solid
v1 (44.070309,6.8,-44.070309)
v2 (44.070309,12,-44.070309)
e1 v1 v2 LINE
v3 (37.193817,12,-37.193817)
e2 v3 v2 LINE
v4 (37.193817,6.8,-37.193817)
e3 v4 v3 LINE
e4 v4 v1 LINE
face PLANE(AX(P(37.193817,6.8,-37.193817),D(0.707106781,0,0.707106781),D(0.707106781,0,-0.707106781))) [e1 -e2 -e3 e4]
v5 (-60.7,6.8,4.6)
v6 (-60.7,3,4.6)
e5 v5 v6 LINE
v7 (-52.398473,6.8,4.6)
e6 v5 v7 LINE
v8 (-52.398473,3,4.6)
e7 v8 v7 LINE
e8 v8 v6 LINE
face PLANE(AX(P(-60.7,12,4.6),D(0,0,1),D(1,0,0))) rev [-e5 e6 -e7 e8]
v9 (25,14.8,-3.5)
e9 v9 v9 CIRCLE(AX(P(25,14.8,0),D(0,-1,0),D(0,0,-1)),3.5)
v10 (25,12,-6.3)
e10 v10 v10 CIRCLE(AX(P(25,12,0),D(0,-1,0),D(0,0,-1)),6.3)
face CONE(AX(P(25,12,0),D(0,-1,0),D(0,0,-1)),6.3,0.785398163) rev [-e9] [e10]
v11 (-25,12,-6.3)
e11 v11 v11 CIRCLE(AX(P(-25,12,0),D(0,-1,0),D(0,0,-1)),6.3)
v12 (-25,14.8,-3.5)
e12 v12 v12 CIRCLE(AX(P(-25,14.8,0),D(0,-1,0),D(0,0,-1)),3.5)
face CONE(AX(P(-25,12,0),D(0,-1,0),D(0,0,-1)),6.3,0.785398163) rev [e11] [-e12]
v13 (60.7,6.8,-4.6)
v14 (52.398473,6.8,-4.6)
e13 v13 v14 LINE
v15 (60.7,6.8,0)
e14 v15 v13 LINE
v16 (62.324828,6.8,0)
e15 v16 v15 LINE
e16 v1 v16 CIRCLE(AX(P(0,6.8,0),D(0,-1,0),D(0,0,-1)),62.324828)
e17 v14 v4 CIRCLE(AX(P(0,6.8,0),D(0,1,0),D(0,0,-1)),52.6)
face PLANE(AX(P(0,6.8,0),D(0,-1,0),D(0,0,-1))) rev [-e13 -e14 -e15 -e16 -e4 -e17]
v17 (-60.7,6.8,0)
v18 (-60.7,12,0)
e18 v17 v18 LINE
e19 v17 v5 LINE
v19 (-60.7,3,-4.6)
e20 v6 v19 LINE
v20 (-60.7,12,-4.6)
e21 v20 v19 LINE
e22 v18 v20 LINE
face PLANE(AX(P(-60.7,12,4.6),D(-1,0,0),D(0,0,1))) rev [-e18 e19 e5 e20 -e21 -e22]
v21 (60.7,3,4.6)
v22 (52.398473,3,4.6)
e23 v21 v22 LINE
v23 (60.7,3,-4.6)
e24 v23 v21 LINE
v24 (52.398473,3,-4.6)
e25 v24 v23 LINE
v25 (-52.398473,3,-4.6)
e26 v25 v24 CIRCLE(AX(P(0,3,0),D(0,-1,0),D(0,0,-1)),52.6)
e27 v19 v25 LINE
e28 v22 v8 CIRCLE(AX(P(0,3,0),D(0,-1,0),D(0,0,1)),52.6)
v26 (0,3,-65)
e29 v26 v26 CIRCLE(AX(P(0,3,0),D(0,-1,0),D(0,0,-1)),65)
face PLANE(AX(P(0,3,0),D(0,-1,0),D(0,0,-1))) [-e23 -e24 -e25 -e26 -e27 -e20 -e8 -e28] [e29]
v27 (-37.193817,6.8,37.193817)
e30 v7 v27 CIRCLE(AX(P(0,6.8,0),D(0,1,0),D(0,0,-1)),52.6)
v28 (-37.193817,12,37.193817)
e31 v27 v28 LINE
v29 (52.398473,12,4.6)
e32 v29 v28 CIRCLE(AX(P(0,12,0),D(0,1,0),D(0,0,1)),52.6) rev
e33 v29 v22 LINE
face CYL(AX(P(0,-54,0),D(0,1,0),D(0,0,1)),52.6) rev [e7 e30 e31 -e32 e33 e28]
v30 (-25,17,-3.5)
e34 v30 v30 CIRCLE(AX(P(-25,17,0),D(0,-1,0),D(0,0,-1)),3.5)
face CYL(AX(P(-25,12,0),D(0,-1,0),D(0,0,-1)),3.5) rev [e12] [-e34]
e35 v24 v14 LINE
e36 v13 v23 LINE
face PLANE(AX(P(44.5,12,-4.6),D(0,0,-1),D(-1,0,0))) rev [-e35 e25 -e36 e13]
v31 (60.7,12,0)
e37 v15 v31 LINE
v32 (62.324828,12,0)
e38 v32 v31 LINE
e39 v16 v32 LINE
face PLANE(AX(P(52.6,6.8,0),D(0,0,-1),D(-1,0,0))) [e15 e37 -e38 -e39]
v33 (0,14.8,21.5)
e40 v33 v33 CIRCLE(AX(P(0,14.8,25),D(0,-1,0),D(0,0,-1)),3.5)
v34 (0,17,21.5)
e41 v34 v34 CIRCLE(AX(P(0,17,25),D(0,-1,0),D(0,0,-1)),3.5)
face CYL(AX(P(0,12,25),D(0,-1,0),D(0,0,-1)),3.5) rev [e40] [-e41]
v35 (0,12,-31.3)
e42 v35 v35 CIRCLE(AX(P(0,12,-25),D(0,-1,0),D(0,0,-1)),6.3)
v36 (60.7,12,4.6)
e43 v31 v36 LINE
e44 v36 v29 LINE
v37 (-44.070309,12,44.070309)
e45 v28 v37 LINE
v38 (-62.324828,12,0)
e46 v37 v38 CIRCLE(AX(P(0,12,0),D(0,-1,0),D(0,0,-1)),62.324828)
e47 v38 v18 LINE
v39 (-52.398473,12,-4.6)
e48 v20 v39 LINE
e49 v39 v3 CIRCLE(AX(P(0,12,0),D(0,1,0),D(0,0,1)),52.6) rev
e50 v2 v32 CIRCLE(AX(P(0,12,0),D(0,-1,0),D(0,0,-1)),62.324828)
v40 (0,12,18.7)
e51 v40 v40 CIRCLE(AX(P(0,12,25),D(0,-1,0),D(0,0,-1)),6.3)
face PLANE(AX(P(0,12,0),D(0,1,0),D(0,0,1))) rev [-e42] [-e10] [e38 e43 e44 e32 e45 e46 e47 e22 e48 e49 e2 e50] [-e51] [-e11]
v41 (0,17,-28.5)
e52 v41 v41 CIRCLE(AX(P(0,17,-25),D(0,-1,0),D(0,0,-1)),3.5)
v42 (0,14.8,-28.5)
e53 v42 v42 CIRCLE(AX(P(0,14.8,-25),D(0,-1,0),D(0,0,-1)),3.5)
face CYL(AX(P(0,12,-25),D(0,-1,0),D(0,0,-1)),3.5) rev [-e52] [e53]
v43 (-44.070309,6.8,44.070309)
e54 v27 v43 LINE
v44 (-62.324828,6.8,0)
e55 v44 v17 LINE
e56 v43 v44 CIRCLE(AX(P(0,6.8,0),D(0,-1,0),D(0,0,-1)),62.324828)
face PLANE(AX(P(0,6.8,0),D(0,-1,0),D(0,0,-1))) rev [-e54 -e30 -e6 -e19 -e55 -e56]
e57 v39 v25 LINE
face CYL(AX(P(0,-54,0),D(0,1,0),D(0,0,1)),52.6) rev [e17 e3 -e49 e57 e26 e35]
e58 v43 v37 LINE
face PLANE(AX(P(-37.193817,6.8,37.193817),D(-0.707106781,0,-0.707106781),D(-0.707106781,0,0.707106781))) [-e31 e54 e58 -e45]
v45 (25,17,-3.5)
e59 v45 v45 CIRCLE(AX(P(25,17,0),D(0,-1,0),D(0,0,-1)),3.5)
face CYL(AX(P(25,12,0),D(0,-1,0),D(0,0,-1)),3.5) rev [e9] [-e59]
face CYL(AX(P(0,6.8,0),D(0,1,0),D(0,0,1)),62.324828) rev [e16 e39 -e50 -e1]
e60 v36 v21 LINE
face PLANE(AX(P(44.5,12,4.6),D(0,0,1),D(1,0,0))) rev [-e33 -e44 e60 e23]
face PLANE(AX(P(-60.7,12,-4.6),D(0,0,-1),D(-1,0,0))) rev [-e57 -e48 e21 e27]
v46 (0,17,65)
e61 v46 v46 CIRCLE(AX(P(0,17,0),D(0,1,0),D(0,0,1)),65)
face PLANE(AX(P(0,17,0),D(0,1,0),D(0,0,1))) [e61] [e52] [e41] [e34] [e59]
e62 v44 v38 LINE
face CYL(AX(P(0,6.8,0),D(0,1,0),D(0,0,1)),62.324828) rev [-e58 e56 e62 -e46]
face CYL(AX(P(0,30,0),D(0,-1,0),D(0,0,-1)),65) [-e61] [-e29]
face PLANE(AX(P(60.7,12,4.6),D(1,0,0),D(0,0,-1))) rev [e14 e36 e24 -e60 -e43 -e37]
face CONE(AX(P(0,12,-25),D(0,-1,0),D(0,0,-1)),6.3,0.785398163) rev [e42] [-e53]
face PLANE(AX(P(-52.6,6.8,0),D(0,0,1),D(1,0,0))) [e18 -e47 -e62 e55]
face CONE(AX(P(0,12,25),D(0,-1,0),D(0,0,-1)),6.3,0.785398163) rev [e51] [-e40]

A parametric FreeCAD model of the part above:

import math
import FreeCAD as App
import Part
import Sketcher

V = App.Vector
Q = App.Units.Quantity


def add_polygon(sketch, points):
    """Adds a closed chain of lines whose ends are joined by coincident constraints."""
    first, n = sketch.GeometryCount, len(points)
    for a, b in zip(points, points[1:] + points[:1]):
        sketch.addGeometry(Part.LineSegment(App.Vector(*a, 0), App.Vector(*b, 0)), False)
    for i in range(n):
        sketch.addConstraint(Sketcher.Constraint("Coincident", first + i, 2, first + (i + 1) % n, 1))

doc = App.newDocument("Part")
params = doc.addObject("Spreadsheet::Sheet", "Params")
for row, (alias, value) in enumerate([
    ("sketch1_diameter", "130 mm"),
    ("pad1_length", "30 mm"),
    ("sketch2_diameter", "105.2 mm"),
    ("pocket1_length", "84 mm"),
    ("sketch3_diameter", "105.2 mm"),
    ("pad2_length", "5 mm"),
    ("sketch4_width", "16.2 mm"),
    ("sketch4_height", "9.2 mm"),
    ("pocket2_length", "12 mm"),
    ("sketch5_radius", "52.6 mm"),
    ("pocket3_length", "5.2 mm"),
    ("sketch6_diameter", "7 mm"),
    ("hole_diameter", "7 mm"),
    ("sketch7_diameter", "130 mm"),
    ("pocket4_length", "18 mm"),
    ("sketch8_diameter", "130 mm"),
    ("pad3_length", "5 mm"),
    ("sketch9_width", "5 mm"),
    ("sketch9_width2", "2.2 mm"),
    ("sketch9_height", "6.3 mm"),
    ("groove_angle", "360 deg"),
    ("linearpattern_pitch", "35.355339 mm"),
    ("linearpattern2_pitch", "50 mm"),
    ("linearpattern3_pitch", "50 mm"),
    ("linearpattern4_pitch", "35.355339 mm"),
    ("linearpattern5_pitch", "35.355339 mm"),
    ("sketch10_diameter", "130 mm"),
    ("sketch10_radius", "52.6 mm"),
    ("sketch10_height", "9.2 mm"),
    ("pocket5_length", "3 mm"),
], start=1):
    params.set(f"A{row}", alias)
    params.set(f"B{row}", "=" + value)
    params.setAlias(f"B{row}", alias)

body = doc.addObject("PartDesign::Body", "Body")

# Sketch on XZ plane
sketch1 = doc.addObject("Sketcher::SketchObject", "Sketch")
body.addObject(sketch1)
sketch1.AttachmentSupport = (doc.XZ_Plane, [""])
sketch1.MapMode = "FlatFace"
sketch1.addGeometry(Part.Circle(V(0, 0, 0), V(0, 0, 1), 65), False)
sketch1.addConstraint(Sketcher.Constraint("Coincident", 0, 3, -1, 1))
sketch1.addConstraint(Sketcher.Constraint("Diameter", 0, 130.0))
sketch1.setExpression("Constraints[1]", "Params.sketch1_diameter")
pad1 = doc.addObject("PartDesign::Pad", "Pad")
body.addObject(pad1)
pad1.Profile = sketch1
pad1.setExpression("Length", "Params.pad1_length")
pad1.Reversed = True

# Sketch on XZ plane
sketch2 = doc.addObject("Sketcher::SketchObject", "Sketch001")
body.addObject(sketch2)
sketch2.AttachmentSupport = (doc.XZ_Plane, [""])
sketch2.MapMode = "FlatFace"
sketch2.AttachmentOffset = App.Placement(V(0, 0, -30), App.Rotation())
sketch2.addGeometry(Part.Circle(V(0, 0, 0), V(0, 0, 1), 53), False)
sketch2.addConstraint(Sketcher.Constraint("Coincident", 0, 3, -1, 1))
sketch2.addConstraint(Sketcher.Constraint("Diameter", 0, 105.2))
sketch2.setExpression("Constraints[1]", "Params.sketch2_diameter")
pocket1 = doc.addObject("PartDesign::Pocket", "Pocket")
body.addObject(pocket1)
pocket1.Profile = sketch2
pocket1.setExpression("Length", "Params.pocket1_length")
pocket1.Reversed = True

# Sketch on XZ plane
sketch3 = doc.addObject("Sketcher::SketchObject", "Sketch002")
body.addObject(sketch3)
sketch3.AttachmentSupport = (doc.XZ_Plane, [""])
sketch3.MapMode = "FlatFace"
sketch3.AttachmentOffset = App.Placement(V(0, 0, -30), App.Rotation())
sketch3.addGeometry(Part.Circle(V(0, 0, 0), V(0, 0, 1), 53), False)
sketch3.addConstraint(Sketcher.Constraint("Coincident", 0, 3, -1, 1))
sketch3.addConstraint(Sketcher.Constraint("Diameter", 0, 105.2))
sketch3.setExpression("Constraints[1]", "Params.sketch3_diameter")
pad2 = doc.addObject("PartDesign::Pad", "Pad001")
body.addObject(pad2)
pad2.Profile = sketch3
pad2.setExpression("Length", "Params.pad2_length")

# Sketch on XZ plane
sketch4 = doc.addObject("Sketcher::SketchObject", "Sketch003")
body.addObject(sketch4)
sketch4.AttachmentSupport = (doc.XZ_Plane, [""])
sketch4.MapMode = "FlatFace"
add_polygon(sketch4, [(-61, 5), (-61, -5), (-44, -5), (-44, 5)])  # lines 0-3
add_polygon(sketch4, [(44, 5), (44, -5), (61, -5), (61, 5)])  # lines 4-7
sketch4.addConstraint(Sketcher.Constraint("Vertical", 0))
sketch4.addConstraint(Sketcher.Constraint("Horizontal", 1))
sketch4.addConstraint(Sketcher.Constraint("Vertical", 2))
sketch4.addConstraint(Sketcher.Constraint("Horizontal", 3))
sketch4.addConstraint(Sketcher.Constraint("Vertical", 4))
sketch4.addConstraint(Sketcher.Constraint("Horizontal", 5))
sketch4.addConstraint(Sketcher.Constraint("Vertical", 6))
sketch4.addConstraint(Sketcher.Constraint("Horizontal", 7))
sketch4.addConstraint(Sketcher.Constraint("Symmetric", 2, 2, 4, 2, -1, 1))
sketch4.addConstraint(Sketcher.Constraint("Symmetric", 0, 2, 6, 2, -1, 1))
sketch4.addConstraint(Sketcher.Constraint("Horizontal", 1, 2, 4, 2))
sketch4.addConstraint(Sketcher.Constraint("DistanceX", 1, 1, 1, 2, 16.2))
sketch4.addConstraint(Sketcher.Constraint("DistanceY", 0, 2, 0, 1, 9.2))
sketch4.addConstraint(Sketcher.Constraint("DistanceX", 1, 2, 4, 2, 89.0))
sketch4.setExpression("Constraints[19]", "Params.sketch4_width")
sketch4.setExpression("Constraints[20]", "Params.sketch4_height")
pocket2 = doc.addObject("PartDesign::Pocket", "Pocket001")
body.addObject(pocket2)
pocket2.Profile = sketch4
pocket2.setExpression("Length", "Params.pocket2_length")

# Sketch on XZ plane
sketch5 = doc.addObject("Sketcher::SketchObject", "Sketch004")
body.addObject(sketch5)
sketch5.AttachmentSupport = (doc.XZ_Plane, [""])
sketch5.MapMode = "FlatFace"
sketch5.AttachmentOffset = App.Placement(V(0, 0, -12), App.Rotation())
sketch5.addGeometry(Part.LineSegment(V(37, -37, 0), V(44, -44, 0)), False)
sketch5.addGeometry(Part.ArcOfCircle(Part.Circle(V(0, 0, 0), V(0, 0, 1), 62), math.radians(-45), math.radians(0)), False)
sketch5.addGeometry(Part.LineSegment(V(62, 0, 0), V(53, 0, 0)), False)
sketch5.addGeometry(Part.ArcOfCircle(Part.Circle(V(0, 0, 0), V(0, 0, 1), 53), math.radians(-45), math.radians(0)), False)
sketch5.addGeometry(Part.LineSegment(V(-37, 37, 0), V(-44, 44, 0)), False)
sketch5.addGeometry(Part.ArcOfCircle(Part.Circle(V(0, 0, 0), V(0, 0, 1), 62), math.radians(135), math.radians(180)), False)
sketch5.addGeometry(Part.LineSegment(V(-62, 0, 0), V(-53, 0, 0)), False)
sketch5.addGeometry(Part.ArcOfCircle(Part.Circle(V(0, 0, 0), V(0, 0, 1), 53), math.radians(135), math.radians(180)), False)
sketch5.addConstraint(Sketcher.Constraint("Coincident", 0, 2, 1, 1))
sketch5.addConstraint(Sketcher.Constraint("Coincident", 1, 2, 2, 1))
sketch5.addConstraint(Sketcher.Constraint("Coincident", 2, 2, 3, 2))
sketch5.addConstraint(Sketcher.Constraint("Coincident", 3, 1, 0, 1))
sketch5.addConstraint(Sketcher.Constraint("Coincident", 4, 2, 5, 1))
sketch5.addConstraint(Sketcher.Constraint("Coincident", 5, 2, 6, 1))
sketch5.addConstraint(Sketcher.Constraint("Coincident", 6, 2, 7, 2))
sketch5.addConstraint(Sketcher.Constraint("Coincident", 7, 1, 4, 1))
sketch5.addConstraint(Sketcher.Constraint("Horizontal", 2))
sketch5.addConstraint(Sketcher.Constraint("Horizontal", 6))
sketch5.addConstraint(Sketcher.Constraint("Coincident", 1, 3, -1, 1))
sketch5.addConstraint(Sketcher.Constraint("Coincident", 3, 3, -1, 1))
sketch5.addConstraint(Sketcher.Constraint("Coincident", 5, 3, -1, 1))
sketch5.addConstraint(Sketcher.Constraint("Coincident", 7, 3, -1, 1))
sketch5.addConstraint(Sketcher.Constraint("Equal", 1, 5))
sketch5.addConstraint(Sketcher.Constraint("Equal", 3, 7))
sketch5.addConstraint(Sketcher.Constraint("PointOnObject", 1, 2, -1))
sketch5.addConstraint(Sketcher.Constraint("PointOnObject", 5, 2, -1))
sketch5.addConstraint(Sketcher.Constraint("Parallel", 0, 4))
sketch5.addConstraint(Sketcher.Constraint("Radius", 3, 52.6))
sketch5.addConstraint(Sketcher.Constraint("Angle", 0, Q("-45 deg")))
sketch5.addConstraint(Sketcher.Constraint("Radius", 1, 62.324828))
sketch5.addConstraint(Sketcher.Constraint("DistanceX", -1, 1, 0, 2, 44.070309))
sketch5.addConstraint(Sketcher.Constraint("DistanceX", 4, 2, -1, 1, 44.070309))
sketch5.setExpression("Constraints[19]", "Params.sketch5_radius")
pocket3 = doc.addObject("PartDesign::Pocket", "Pocket002")
body.addObject(pocket3)
pocket3.Profile = sketch5
pocket3.setExpression("Length", "Params.pocket3_length")
pocket3.Reversed = True

# Sketch on XZ plane
sketch6 = doc.addObject("Sketcher::SketchObject", "Sketch005")
body.addObject(sketch6)
sketch6.AttachmentSupport = (doc.XZ_Plane, [""])
sketch6.MapMode = "FlatFace"
sketch6.AttachmentOffset = App.Placement(V(0, 0, -30), App.Rotation())
sketch6.addGeometry(Part.Circle(V(0, -25, 0), V(0, 0, 1), 3.5), False)
sketch6.addGeometry(Part.Circle(V(-25, 0, 0), V(0, 0, 1), 3.5), False)
sketch6.addGeometry(Part.Circle(V(25, 0, 0), V(0, 0, 1), 3.5), False)
sketch6.addGeometry(Part.Circle(V(0, 25, 0), V(0, 0, 1), 3.5), False)
sketch6.addConstraint(Sketcher.Constraint("Equal", 0, 1))
sketch6.addConstraint(Sketcher.Constraint("Equal", 1, 2))
sketch6.addConstraint(Sketcher.Constraint("Equal", 2, 3))
sketch6.addConstraint(Sketcher.Constraint("Symmetric", 1, 3, 2, 3, -1, 1))
sketch6.addConstraint(Sketcher.Constraint("Symmetric", 0, 3, 3, 3, -1, 1))
sketch6.addConstraint(Sketcher.Constraint("PointOnObject", 0, 3, -2))
sketch6.addConstraint(Sketcher.Constraint("PointOnObject", 1, 3, -1))
sketch6.addConstraint(Sketcher.Constraint("Diameter", 0, 7.0))
sketch6.addConstraint(Sketcher.Constraint("DistanceY", 0, 3, -1, 1, 25.0))
sketch6.addConstraint(Sketcher.Constraint("DistanceX", 1, 3, -1, 1, 25.0))
sketch6.setExpression("Constraints[7]", "Params.sketch6_diameter")
doc.recompute()
hole = doc.addObject("PartDesign::Hole", "Hole")
body.addObject(hole)
hole.Profile = sketch6
hole.ThreadType = "None"
hole.setExpression("Diameter", "Params.hole_diameter")
hole.DepthType = "ThroughAll"
hole.Reversed = True

# Sketch on XZ plane
sketch7 = doc.addObject("Sketcher::SketchObject", "Sketch006")
body.addObject(sketch7)
sketch7.AttachmentSupport = (doc.XZ_Plane, [""])
sketch7.MapMode = "FlatFace"
sketch7.AttachmentOffset = App.Placement(V(0, 0, -12), App.Rotation())
sketch7.addGeometry(Part.Circle(V(0, 0, 0), V(0, 0, 1), 65), False)
sketch7.addConstraint(Sketcher.Constraint("Coincident", 0, 3, -1, 1))
sketch7.addConstraint(Sketcher.Constraint("Diameter", 0, 130.0))
sketch7.setExpression("Constraints[1]", "Params.sketch7_diameter")
pocket4 = doc.addObject("PartDesign::Pocket", "Pocket003")
body.addObject(pocket4)
pocket4.Profile = sketch7
pocket4.setExpression("Length", "Params.pocket4_length")

# Sketch on XZ plane
sketch8 = doc.addObject("Sketcher::SketchObject", "Sketch007")
body.addObject(sketch8)
sketch8.AttachmentSupport = (doc.XZ_Plane, [""])
sketch8.MapMode = "FlatFace"
sketch8.AttachmentOffset = App.Placement(V(0, 0, -12), App.Rotation())
sketch8.addGeometry(Part.Circle(V(0, 0, 0), V(0, 0, 1), 65), False)
sketch8.addConstraint(Sketcher.Constraint("Coincident", 0, 3, -1, 1))
sketch8.addConstraint(Sketcher.Constraint("Diameter", 0, 130.0))
sketch8.setExpression("Constraints[1]", "Params.sketch8_diameter")
pad3 = doc.addObject("PartDesign::Pad", "Pad002")
body.addObject(pad3)
pad3.Profile = sketch8
pad3.setExpression("Length", "Params.pad3_length")
pad3.Reversed = True

# Sketch on YZ plane
sketch9 = doc.addObject("Sketcher::SketchObject", "Sketch008")
body.addObject(sketch9)
sketch9.AttachmentSupport = (doc.YZ_Plane, [""])
sketch9.MapMode = "FlatFace"
sketch9.AttachmentOffset = App.Placement(V(0, 0, 25), App.Rotation())
add_polygon(sketch9, [(17, 0), (12, 0), (12, -6.3), (14.8, -3.5), (17, -3.5)])  # lines 0-4
sketch9.addConstraint(Sketcher.Constraint("Horizontal", 0))
sketch9.addConstraint(Sketcher.Constraint("Vertical", 1))
sketch9.addConstraint(Sketcher.Constraint("Horizontal", 3))
sketch9.addConstraint(Sketcher.Constraint("Vertical", 4))
sketch9.addConstraint(Sketcher.Constraint("PointOnObject", 0, 2, -1))
sketch9.addConstraint(Sketcher.Constraint("DistanceX", 0, 2, 0, 1, 5.0))
sketch9.addConstraint(Sketcher.Constraint("Angle", 2, Q("45 deg")))
sketch9.addConstraint(Sketcher.Constraint("DistanceX", 3, 1, 3, 2, 2.2))
sketch9.addConstraint(Sketcher.Constraint("DistanceY", 1, 2, 1, 1, 6.3))
sketch9.addConstraint(Sketcher.Constraint("DistanceX", -1, 1, 0, 2, 12.0))
sketch9.setExpression("Constraints[10]", "Params.sketch9_width")
sketch9.setExpression("Constraints[12]", "Params.sketch9_width2")
sketch9.setExpression("Constraints[13]", "Params.sketch9_height")
groove = doc.addObject("PartDesign::Groove", "Groove")
body.addObject(groove)
groove.Profile = sketch9
groove.ReferenceAxis = (sketch9, ["H_Axis"])
groove.setExpression("Angle", "Params.groove_angle")
doc.recompute()

datumline = doc.addObject("PartDesign::Line", "DatumLine")
body.addObject(datumline)
datumline.Placement = App.Placement(V(0, 0, 0), App.Rotation(V(0, 0, 1), V(-0.707106781, 0, 0.707106781)))
linearpattern = doc.addObject("PartDesign::LinearPattern", "LinearPattern")
body.addObject(linearpattern)
linearpattern.Originals = [groove]
linearpattern.Direction = (datumline, [""])
linearpattern.Mode = "offset"
linearpattern.setExpression("Offset", "Params.linearpattern_pitch")
linearpattern.Occurrences = 2
body.Tip = linearpattern
doc.recompute()

linearpattern2 = doc.addObject("PartDesign::LinearPattern", "LinearPattern001")
body.addObject(linearpattern2)
linearpattern2.Originals = [groove]
linearpattern2.Direction = (doc.X_Axis, [""])
linearpattern2.Mode = "offset"
linearpattern2.setExpression("Offset", "Params.linearpattern2_pitch")
linearpattern2.Occurrences = 2
linearpattern2.Reversed = True
body.Tip = linearpattern2
doc.recompute()

linearpattern3 = doc.addObject("PartDesign::LinearPattern", "LinearPattern002")
body.addObject(linearpattern3)
linearpattern3.Originals = [groove]
linearpattern3.Direction = (doc.X_Axis, [""])
linearpattern3.Mode = "offset"
linearpattern3.setExpression("Offset", "Params.linearpattern3_pitch")
linearpattern3.Occurrences = 2
linearpattern3.Reversed = True
body.Tip = linearpattern3
doc.recompute()

datumline2 = doc.addObject("PartDesign::Line", "DatumLine001")
body.addObject(datumline2)
datumline2.Placement = App.Placement(V(0, 0, 0), App.Rotation(V(0, 0, 1), V(-0.707106781, 0, 0.707106781)))
linearpattern4 = doc.addObject("PartDesign::LinearPattern", "LinearPattern003")
body.addObject(linearpattern4)
linearpattern4.Originals = [groove]
linearpattern4.Direction = (datumline2, [""])
linearpattern4.Mode = "offset"
linearpattern4.setExpression("Offset", "Params.linearpattern4_pitch")
linearpattern4.Occurrences = 2
body.Tip = linearpattern4
doc.recompute()

datumline3 = doc.addObject("PartDesign::Line", "DatumLine002")
body.addObject(datumline3)
datumline3.Placement = App.Placement(V(0, 0, 0), App.Rotation(V(0, 0, 1), V(-0.707106781, 0, -0.707106781)))
linearpattern5 = doc.addObject("PartDesign::LinearPattern", "LinearPattern004")
body.addObject(linearpattern5)
linearpattern5.Originals = [groove]
linearpattern5.Direction = (datumline3, [""])
linearpattern5.Mode = "offset"
linearpattern5.setExpression("Offset", "Params.linearpattern5_pitch")
linearpattern5.Occurrences = 2
body.Tip = linearpattern5

# Sketch on XZ plane
sketch10 = doc.addObject("Sketcher::SketchObject", "Sketch009")
body.addObject(sketch10)
sketch10.AttachmentSupport = (doc.XZ_Plane, [""])
sketch10.MapMode = "FlatFace"
sketch10.AttachmentOffset = App.Placement(V(0, 0, -3), App.Rotation())
sketch10.addGeometry(Part.Circle(V(0, 0, 0), V(0, 0, 1), 65), False)
sketch10.addGeometry(Part.LineSegment(V(-61, 5, 0), V(-52, 5, 0)), False)
sketch10.addGeometry(Part.ArcOfCircle(Part.Circle(V(0, 0, 0), V(0, 0, 1), 53), math.radians(5), math.radians(175)), False)
sketch10.addGeometry(Part.LineSegment(V(52, 5, 0), V(61, 5, 0)), False)
sketch10.addGeometry(Part.LineSegment(V(61, 5, 0), V(61, -5, 0)), False)
sketch10.addGeometry(Part.LineSegment(V(61, -5, 0), V(52, -5, 0)), False)
sketch10.addGeometry(Part.ArcOfCircle(Part.Circle(V(0, 0, 0), V(0, 0, 1), 53), math.radians(-175), math.radians(-5)), False)
sketch10.addGeometry(Part.LineSegment(V(-52, -5, 0), V(-61, -5, 0)), False)
sketch10.addGeometry(Part.LineSegment(V(-61, -5, 0), V(-61, 5, 0)), False)
sketch10.addConstraint(Sketcher.Constraint("Coincident", 1, 2, 2, 2))
sketch10.addConstraint(Sketcher.Constraint("Coincident", 2, 1, 3, 1))
sketch10.addConstraint(Sketcher.Constraint("Coincident", 3, 2, 4, 1))
sketch10.addConstraint(Sketcher.Constraint("Coincident", 4, 2, 5, 1))
sketch10.addConstraint(Sketcher.Constraint("Coincident", 5, 2, 6, 2))
sketch10.addConstraint(Sketcher.Constraint("Coincident", 6, 1, 7, 1))
sketch10.addConstraint(Sketcher.Constraint("Coincident", 7, 2, 8, 1))
sketch10.addConstraint(Sketcher.Constraint("Coincident", 8, 2, 1, 1))
sketch10.addConstraint(Sketcher.Constraint("Horizontal", 1))
sketch10.addConstraint(Sketcher.Constraint("Horizontal", 3))
sketch10.addConstraint(Sketcher.Constraint("Vertical", 4))
sketch10.addConstraint(Sketcher.Constraint("Horizontal", 5))
sketch10.addConstraint(Sketcher.Constraint("Horizontal", 7))
sketch10.addConstraint(Sketcher.Constraint("Vertical", 8))
sketch10.addConstraint(Sketcher.Constraint("Coincident", 0, 3, -1, 1))
sketch10.addConstraint(Sketcher.Constraint("Coincident", 2, 3, -1, 1))
sketch10.addConstraint(Sketcher.Constraint("Coincident", 6, 3, -1, 1))
sketch10.addConstraint(Sketcher.Constraint("Equal", 2, 6))
sketch10.addConstraint(Sketcher.Constraint("Symmetric", 3, 2, 7, 2, -1, 1))
sketch10.addConstraint(Sketcher.Constraint("Horizontal", 1, 2, 2, 1))
sketch10.addConstraint(Sketcher.Constraint("Horizontal", 5, 2, 6, 1))
sketch10.addConstraint(Sketcher.Constraint("Diameter", 0, 130.0))
sketch10.addConstraint(Sketcher.Constraint("Radius", 2, 52.6))
sketch10.addConstraint(Sketcher.Constraint("DistanceY", 4, 2, 4, 1, 9.2))
sketch10.addConstraint(Sketcher.Constraint("DistanceX", -1, 1, 3, 2, 60.7))
sketch10.setExpression("Constraints[21]", "Params.sketch10_diameter")
sketch10.setExpression("Constraints[22]", "Params.sketch10_radius")
sketch10.setExpression("Constraints[23]", "Params.sketch10_height")
pocket5 = doc.addObject("PartDesign::Pocket", "Pocket004")
body.addObject(pocket5)
pocket5.Profile = sketch10
pocket5.setExpression("Length", "Params.pocket5_length")
pocket5.Reversed = True

doc.recompute()
